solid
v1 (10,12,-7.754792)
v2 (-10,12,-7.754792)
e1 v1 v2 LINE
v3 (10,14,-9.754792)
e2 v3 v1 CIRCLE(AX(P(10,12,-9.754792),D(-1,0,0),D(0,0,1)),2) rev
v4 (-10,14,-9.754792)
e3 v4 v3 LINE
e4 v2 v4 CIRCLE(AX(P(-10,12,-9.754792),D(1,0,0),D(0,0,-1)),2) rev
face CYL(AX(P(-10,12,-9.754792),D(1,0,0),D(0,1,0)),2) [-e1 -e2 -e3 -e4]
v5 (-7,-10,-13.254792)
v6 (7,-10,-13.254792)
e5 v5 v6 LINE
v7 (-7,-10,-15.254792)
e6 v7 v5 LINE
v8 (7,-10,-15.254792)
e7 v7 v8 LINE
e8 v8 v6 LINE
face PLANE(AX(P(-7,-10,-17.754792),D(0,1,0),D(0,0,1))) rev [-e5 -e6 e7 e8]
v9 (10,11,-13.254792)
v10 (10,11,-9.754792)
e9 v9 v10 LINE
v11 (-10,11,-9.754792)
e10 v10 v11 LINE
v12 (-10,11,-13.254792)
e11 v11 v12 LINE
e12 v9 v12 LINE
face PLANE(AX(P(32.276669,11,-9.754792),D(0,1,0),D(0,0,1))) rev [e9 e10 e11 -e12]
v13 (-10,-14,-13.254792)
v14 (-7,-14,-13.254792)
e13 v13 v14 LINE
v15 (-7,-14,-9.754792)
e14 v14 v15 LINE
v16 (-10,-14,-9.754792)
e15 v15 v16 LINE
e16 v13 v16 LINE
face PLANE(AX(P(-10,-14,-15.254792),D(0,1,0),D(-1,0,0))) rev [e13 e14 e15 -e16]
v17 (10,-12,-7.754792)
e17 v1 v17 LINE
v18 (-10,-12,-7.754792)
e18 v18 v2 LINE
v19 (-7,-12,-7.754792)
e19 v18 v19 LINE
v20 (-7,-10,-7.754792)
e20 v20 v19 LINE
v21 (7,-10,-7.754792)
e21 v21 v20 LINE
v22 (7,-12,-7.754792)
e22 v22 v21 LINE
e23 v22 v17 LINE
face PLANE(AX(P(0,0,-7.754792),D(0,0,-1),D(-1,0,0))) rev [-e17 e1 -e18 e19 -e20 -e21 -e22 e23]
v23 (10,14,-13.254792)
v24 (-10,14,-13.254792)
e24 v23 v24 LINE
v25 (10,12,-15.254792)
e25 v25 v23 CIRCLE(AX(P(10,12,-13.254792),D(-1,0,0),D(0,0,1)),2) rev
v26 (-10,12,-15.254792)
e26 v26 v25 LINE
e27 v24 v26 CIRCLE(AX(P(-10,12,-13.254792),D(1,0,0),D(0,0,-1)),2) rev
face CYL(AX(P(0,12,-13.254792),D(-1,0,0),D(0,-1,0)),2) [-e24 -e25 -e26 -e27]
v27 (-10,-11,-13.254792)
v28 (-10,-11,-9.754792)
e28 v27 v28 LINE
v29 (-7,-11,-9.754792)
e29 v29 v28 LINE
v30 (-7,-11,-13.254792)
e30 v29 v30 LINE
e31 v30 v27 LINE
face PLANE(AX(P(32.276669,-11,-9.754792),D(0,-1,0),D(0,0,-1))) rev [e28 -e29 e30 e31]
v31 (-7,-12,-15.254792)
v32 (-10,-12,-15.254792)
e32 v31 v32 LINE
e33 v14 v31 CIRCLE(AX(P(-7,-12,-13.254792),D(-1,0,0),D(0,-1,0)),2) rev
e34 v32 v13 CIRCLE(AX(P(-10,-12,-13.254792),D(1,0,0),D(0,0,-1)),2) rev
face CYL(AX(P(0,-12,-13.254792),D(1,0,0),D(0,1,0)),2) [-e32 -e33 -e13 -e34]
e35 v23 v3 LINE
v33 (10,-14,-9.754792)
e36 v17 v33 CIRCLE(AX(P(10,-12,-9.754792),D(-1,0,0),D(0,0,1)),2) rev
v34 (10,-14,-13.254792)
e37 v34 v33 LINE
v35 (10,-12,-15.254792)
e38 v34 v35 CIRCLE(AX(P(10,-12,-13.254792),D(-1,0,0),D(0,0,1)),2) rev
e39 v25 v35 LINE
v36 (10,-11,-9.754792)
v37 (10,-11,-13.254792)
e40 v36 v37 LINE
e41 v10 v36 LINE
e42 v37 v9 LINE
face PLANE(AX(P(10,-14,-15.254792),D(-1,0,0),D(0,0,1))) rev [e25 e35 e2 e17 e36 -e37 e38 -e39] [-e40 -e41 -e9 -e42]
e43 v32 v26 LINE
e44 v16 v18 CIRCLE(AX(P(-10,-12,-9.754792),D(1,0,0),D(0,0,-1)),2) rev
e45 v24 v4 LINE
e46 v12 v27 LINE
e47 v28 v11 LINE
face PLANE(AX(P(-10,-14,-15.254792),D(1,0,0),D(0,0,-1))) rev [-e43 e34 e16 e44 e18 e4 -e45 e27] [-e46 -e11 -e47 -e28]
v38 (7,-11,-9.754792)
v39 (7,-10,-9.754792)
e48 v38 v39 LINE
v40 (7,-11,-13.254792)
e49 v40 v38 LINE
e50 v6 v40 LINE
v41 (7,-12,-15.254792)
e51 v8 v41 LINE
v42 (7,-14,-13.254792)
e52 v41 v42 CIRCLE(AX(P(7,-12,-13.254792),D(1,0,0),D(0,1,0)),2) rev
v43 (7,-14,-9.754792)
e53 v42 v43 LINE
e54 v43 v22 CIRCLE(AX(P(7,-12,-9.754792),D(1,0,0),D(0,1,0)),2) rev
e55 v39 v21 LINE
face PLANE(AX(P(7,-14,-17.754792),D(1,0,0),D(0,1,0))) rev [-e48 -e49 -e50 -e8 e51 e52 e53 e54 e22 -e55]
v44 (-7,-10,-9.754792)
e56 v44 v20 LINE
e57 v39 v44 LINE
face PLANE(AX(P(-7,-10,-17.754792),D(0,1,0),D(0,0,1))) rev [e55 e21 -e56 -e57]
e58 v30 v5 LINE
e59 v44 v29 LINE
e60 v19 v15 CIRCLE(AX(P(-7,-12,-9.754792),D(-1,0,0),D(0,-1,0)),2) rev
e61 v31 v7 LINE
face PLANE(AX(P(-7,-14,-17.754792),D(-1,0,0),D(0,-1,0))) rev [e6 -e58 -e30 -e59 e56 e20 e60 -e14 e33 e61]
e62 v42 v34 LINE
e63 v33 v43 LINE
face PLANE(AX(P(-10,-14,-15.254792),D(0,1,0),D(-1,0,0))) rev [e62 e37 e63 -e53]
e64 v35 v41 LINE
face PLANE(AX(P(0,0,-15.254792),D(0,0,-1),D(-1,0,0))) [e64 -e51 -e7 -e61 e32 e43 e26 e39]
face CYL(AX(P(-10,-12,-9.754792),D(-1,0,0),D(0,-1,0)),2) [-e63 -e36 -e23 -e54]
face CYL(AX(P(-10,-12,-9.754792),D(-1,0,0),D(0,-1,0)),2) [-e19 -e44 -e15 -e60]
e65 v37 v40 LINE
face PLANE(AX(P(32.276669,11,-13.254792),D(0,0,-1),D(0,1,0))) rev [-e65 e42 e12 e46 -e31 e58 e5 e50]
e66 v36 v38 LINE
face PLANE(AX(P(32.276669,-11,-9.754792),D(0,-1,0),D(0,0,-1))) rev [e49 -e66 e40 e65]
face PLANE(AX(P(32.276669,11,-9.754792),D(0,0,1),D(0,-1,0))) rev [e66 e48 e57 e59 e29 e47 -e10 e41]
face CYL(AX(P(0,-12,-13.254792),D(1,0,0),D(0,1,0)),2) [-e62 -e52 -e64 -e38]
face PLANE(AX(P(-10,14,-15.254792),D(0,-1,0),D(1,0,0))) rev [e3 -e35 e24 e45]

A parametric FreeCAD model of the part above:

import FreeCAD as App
import Part
import Sketcher

V = App.Vector


def edges_at(feature, points):
    """Names of the edges that pass closest to the given points."""
    edges = feature.Shape.Edges
    near = lambda p: min(range(len(edges)), key=lambda i: edges[i].distToShape(Part.Vertex(*p))[0])
    return sorted({f"Edge{near(p) + 1}" for p in points})

doc = App.newDocument("Part")
body = doc.addObject("PartDesign::Body", "Body")

sketch1 = body.newObject("Sketcher::SketchObject", "Sketch")
sketch1.AttachmentSupport = (doc.getObject("XY_Plane"), [""])
sketch1.MapMode = "FlatFace"
sketch1.AttachmentOffset = App.Placement(V(0, 0, -7.754792), App.Rotation())
sketch1.addGeometry(Part.LineSegment(V(-21, 4, 0), V(-21, -4, 0)), False)
sketch1.addGeometry(Part.LineSegment(V(-21, -4, 0), V(21, -4, 0)), False)
sketch1.addGeometry(Part.LineSegment(V(21, -4, 0), V(21, 4, 0)), False)
sketch1.addGeometry(Part.LineSegment(V(21, 4, 0), V(-21, 4, 0)), False)
sketch1.addConstraint(Sketcher.Constraint("Coincident", 0, 2, 1, 1))
sketch1.addConstraint(Sketcher.Constraint("Coincident", 1, 2, 2, 1))
sketch1.addConstraint(Sketcher.Constraint("Coincident", 2, 2, 3, 1))
sketch1.addConstraint(Sketcher.Constraint("Coincident", 3, 2, 0, 1))
sketch1.addConstraint(Sketcher.Constraint("Vertical", 0))
sketch1.addConstraint(Sketcher.Constraint("Horizontal", 1))
sketch1.addConstraint(Sketcher.Constraint("Vertical", 2))
sketch1.addConstraint(Sketcher.Constraint("Horizontal", 3))
sketch1.addConstraint(Sketcher.Constraint("Symmetric", 0, 2, 2, 2, -1, 1))
sketch1.addConstraint(Sketcher.Constraint("DistanceX", 1, 1, 1, 2, 42.0))
sketch1.addConstraint(Sketcher.Constraint("DistanceY", 0, 2, 0, 1, 8.4))
pad1 = body.newObject("PartDesign::Pad", "Pad")
pad1.Profile = sketch1
pad1.Length = 2

sketch2 = body.newObject("Sketcher::SketchObject", "Sketch001")
sketch2.AttachmentSupport = (doc.getObject("XY_Plane"), [""])
sketch2.MapMode = "FlatFace"
sketch2.AttachmentOffset = App.Placement(V(0, 0, -5.754792), App.Rotation())
sketch2.addGeometry(Part.LineSegment(V(-10.8, 4.2, 0), V(-10.8, -4.2, 0)), False)
sketch2.addGeometry(Part.LineSegment(V(-10.8, -4.2, 0), V(-7.2, -4.2, 0)), False)
sketch2.addGeometry(Part.LineSegment(V(-7.2, -4.2, 0), V(-7.2, 4.2, 0)), False)
sketch2.addGeometry(Part.LineSegment(V(-7.2, 4.2, 0), V(-10.8, 4.2, 0)), False)
sketch2.addGeometry(Part.LineSegment(V(7.2, 4.2, 0), V(7.2, -4.2, 0)), False)
sketch2.addGeometry(Part.LineSegment(V(7.2, -4.2, 0), V(10.8, -4.2, 0)), False)
sketch2.addGeometry(Part.LineSegment(V(10.8, -4.2, 0), V(10.8, 4.2, 0)), False)
sketch2.addGeometry(Part.LineSegment(V(10.8, 4.2, 0), V(7.2, 4.2, 0)), False)
sketch2.addGeometry(Part.LineSegment(V(-5, 4.2, 0), V(-5, -4.2, 0)), False)
sketch2.addGeometry(Part.LineSegment(V(-5, -4.2, 0), V(5, -4.2, 0)), False)
sketch2.addGeometry(Part.LineSegment(V(5, -4.2, 0), V(5, 4.2, 0)), False)
sketch2.addGeometry(Part.LineSegment(V(5, 4.2, 0), V(-5, 4.2, 0)), False)
sketch2.addConstraint(Sketcher.Constraint("Coincident", 0, 2, 1, 1))
sketch2.addConstraint(Sketcher.Constraint("Coincident", 1, 2, 2, 1))
sketch2.addConstraint(Sketcher.Constraint("Coincident", 2, 2, 3, 1))
sketch2.addConstraint(Sketcher.Constraint("Coincident", 3, 2, 0, 1))
sketch2.addConstraint(Sketcher.Constraint("Coincident", 4, 2, 5, 1))
sketch2.addConstraint(Sketcher.Constraint("Coincident", 5, 2, 6, 1))
sketch2.addConstraint(Sketcher.Constraint("Coincident", 6, 2, 7, 1))
sketch2.addConstraint(Sketcher.Constraint("Coincident", 7, 2, 4, 1))
sketch2.addConstraint(Sketcher.Constraint("Coincident", 8, 2, 9, 1))
sketch2.addConstraint(Sketcher.Constraint("Coincident", 9, 2, 10, 1))
sketch2.addConstraint(Sketcher.Constraint("Coincident", 10, 2, 11, 1))
sketch2.addConstraint(Sketcher.Constraint("Coincident", 11, 2, 8, 1))
sketch2.addConstraint(Sketcher.Constraint("Vertical", 0))
sketch2.addConstraint(Sketcher.Constraint("Horizontal", 1))
sketch2.addConstraint(Sketcher.Constraint("Vertical", 2))
sketch2.addConstraint(Sketcher.Constraint("Horizontal", 3))
sketch2.addConstraint(Sketcher.Constraint("Vertical", 4))
sketch2.addConstraint(Sketcher.Constraint("Horizontal", 5))
sketch2.addConstraint(Sketcher.Constraint("Vertical", 6))
sketch2.addConstraint(Sketcher.Constraint("Horizontal", 7))
sketch2.addConstraint(Sketcher.Constraint("Vertical", 8))
sketch2.addConstraint(Sketcher.Constraint("Horizontal", 9))
sketch2.addConstraint(Sketcher.Constraint("Vertical", 10))
sketch2.addConstraint(Sketcher.Constraint("Horizontal", 11))
sketch2.addConstraint(Sketcher.Constraint("Symmetric", 2, 2, 4, 2, -1, 1))
sketch2.addConstraint(Sketcher.Constraint("Symmetric", 0, 2, 6, 2, -1, 1))
sketch2.addConstraint(Sketcher.Constraint("Symmetric", 8, 2, 10, 2, -1, 1))
sketch2.addConstraint(Sketcher.Constraint("Horizontal", 1, 2, 4, 2))
sketch2.addConstraint(Sketcher.Constraint("Horizontal", 5, 2, 8, 2))
sketch2.addConstraint(Sketcher.Constraint("DistanceX", 9, 1, 9, 2, 10.0))
sketch2.addConstraint(Sketcher.Constraint("DistanceY", 0, 2, 0, 1, 8.4))
sketch2.addConstraint(Sketcher.Constraint("DistanceX", 1, 1, 1, 2, 3.55))
sketch2.addConstraint(Sketcher.Constraint("DistanceX", 1, 2, -1, 1, 7.2))
pad2 = body.newObject("PartDesign::Pad", "Pad001")
pad2.Profile = sketch2
pad2.Length = 2
doc.recompute()

fillet = body.newObject("PartDesign::Fillet", "Fillet")
fillet.Base = (pad2, edges_at(pad2, [
    (-21, 4.2, -6.755),
    (21, 4.2, -6.755),
    (21, -4.2, -6.755),
    (-21, -4.2, -6.755),
]))
fillet.Radius = 2

sketch3 = body.newObject("Sketcher::SketchObject", "Sketch002")
sketch3.AttachmentSupport = (doc.getObject("XY_Plane"), [""])
sketch3.MapMode = "FlatFace"
sketch3.AttachmentOffset = App.Placement(V(0, 0, -5.754792), App.Rotation())
sketch3.addGeometry(Part.Circle(V(-17.8, 0, 0), V(0, 0, 1), 1), False)
sketch3.addGeometry(Part.Circle(V(17.8, 0, 0), V(0, 0, 1), 1), False)
sketch3.addConstraint(Sketcher.Constraint("Equal", 0, 1))
sketch3.addConstraint(Sketcher.Constraint("Symmetric", 0, 3, 1, 3, -1, 1))
sketch3.addConstraint(Sketcher.Constraint("PointOnObject", 0, 3, -1))
sketch3.addConstraint(Sketcher.Constraint("Diameter", 0, 2.0))
sketch3.addConstraint(Sketcher.Constraint("DistanceX", 0, 3, 1, 3, 35.5))
pocket1 = body.newObject("PartDesign::Pocket", "Pocket")
pocket1.Profile = sketch3
pocket1.Length = 2

sketch4 = body.newObject("Sketcher::SketchObject", "Sketch003")
sketch4.AttachmentSupport = (doc.getObject("XY_Plane"), [""])
sketch4.MapMode = "FlatFace"
sketch4.AttachmentOffset = App.Placement(V(0, 0, -7.754792), App.Rotation())
sketch4.addGeometry(Part.LineSegment(V(10, 14, 0), V(10, -14, 0)), False)
sketch4.addGeometry(Part.LineSegment(V(10, -14, 0), V(-10, -14, 0)), False)
sketch4.addGeometry(Part.LineSegment(V(-10, -14, 0), V(-10, 14, 0)), False)
sketch4.addGeometry(Part.LineSegment(V(-10, 14, 0), V(10, 14, 0)), False)
sketch4.addConstraint(Sketcher.Constraint("Coincident", 0, 2, 1, 1))
sketch4.addConstraint(Sketcher.Constraint("Coincident", 1, 2, 2, 1))
sketch4.addConstraint(Sketcher.Constraint("Coincident", 2, 2, 3, 1))
sketch4.addConstraint(Sketcher.Constraint("Coincident", 3, 2, 0, 1))
sketch4.addConstraint(Sketcher.Constraint("Vertical", 0))
sketch4.addConstraint(Sketcher.Constraint("Horizontal", 1))
sketch4.addConstraint(Sketcher.Constraint("Vertical", 2))
sketch4.addConstraint(Sketcher.Constraint("Horizontal", 3))
sketch4.addConstraint(Sketcher.Constraint("Symmetric", 0, 2, 2, 2, -1, 1))
sketch4.addConstraint(Sketcher.Constraint("DistanceX", 1, 2, 1, 1, 20.0))
sketch4.addConstraint(Sketcher.Constraint("DistanceY", 0, 2, 0, 1, 28.0))
pad3 = body.newObject("PartDesign::Pad", "Pad002")
pad3.Profile = sketch4
pad3.Length = 7.5
pad3.Reversed = True
doc.recompute()

fillet2 = body.newObject("PartDesign::Fillet", "Fillet001")
fillet2.Base = (pad3, edges_at(pad3, [
    (0, 14, -7.755),
    (0, -14, -7.755),
    (0, 14, -15.255),
    (0, -14, -15.255),
]))
fillet2.Radius = 2

sketch5 = body.newObject("Sketcher::SketchObject", "Sketch004")
sketch5.AttachmentSupport = (doc.getObject("YZ_Plane"), [""])
sketch5.MapMode = "FlatFace"
sketch5.AttachmentOffset = App.Placement(V(0, 0, -10), App.Rotation())
sketch5.addGeometry(Part.LineSegment(V(11, -13.3, 0), V(-11, -13.3, 0)), False)
sketch5.addGeometry(Part.LineSegment(V(-11, -13.3, 0), V(-11, -9.8, 0)), False)
sketch5.addGeometry(Part.LineSegment(V(-11, -9.8, 0), V(11, -9.8, 0)), False)
sketch5.addGeometry(Part.LineSegment(V(11, -9.8, 0), V(11, -13.3, 0)), False)
sketch5.addConstraint(Sketcher.Constraint("Coincident", 0, 2, 1, 1))
sketch5.addConstraint(Sketcher.Constraint("Coincident", 1, 2, 2, 1))
sketch5.addConstraint(Sketcher.Constraint("Coincident", 2, 2, 3, 1))
sketch5.addConstraint(Sketcher.Constraint("Coincident", 3, 2, 0, 1))
sketch5.addConstraint(Sketcher.Constraint("Horizontal", 0))
sketch5.addConstraint(Sketcher.Constraint("Vertical", 1))
sketch5.addConstraint(Sketcher.Constraint("Horizontal", 2))
sketch5.addConstraint(Sketcher.Constraint("Vertical", 3))
sketch5.addConstraint(Sketcher.Constraint("DistanceX", 0, 2, 0, 1, 22.0))
sketch5.addConstraint(Sketcher.Constraint("DistanceY", 1, 1, 1, 2, 3.5))
sketch5.addConstraint(Sketcher.Constraint("DistanceX", 0, 2, -1, 1, 11.0))
sketch5.addConstraint(Sketcher.Constraint("DistanceY", 0, 2, -1, 1, 13.254792))
pocket2 = body.newObject("PartDesign::Pocket", "Pocket001")
pocket2.Profile = sketch5
pocket2.Length = 20
pocket2.Reversed = True

sketch6 = body.newObject("Sketcher::SketchObject", "Sketch005")
sketch6.AttachmentSupport = (doc.getObject("XY_Plane"), [""])
sketch6.MapMode = "FlatFace"
sketch6.AttachmentOffset = App.Placement(V(0, 0, -3.754792), App.Rotation())
sketch6.addGeometry(Part.LineSegment(V(-22, 5, 0), V(-22, -6, 0)), False)
sketch6.addGeometry(Part.LineSegment(V(-22, -6, 0), V(22, -6, 0)), False)
sketch6.addGeometry(Part.LineSegment(V(22, -6, 0), V(22, 5, 0)), False)
sketch6.addGeometry(Part.LineSegment(V(22, 5, 0), V(-22, 5, 0)), False)
sketch6.addConstraint(Sketcher.Constraint("Coincident", 0, 2, 1, 1))
sketch6.addConstraint(Sketcher.Constraint("Coincident", 1, 2, 2, 1))
sketch6.addConstraint(Sketcher.Constraint("Coincident", 2, 2, 3, 1))
sketch6.addConstraint(Sketcher.Constraint("Coincident", 3, 2, 0, 1))
sketch6.addConstraint(Sketcher.Constraint("Vertical", 0))
sketch6.addConstraint(Sketcher.Constraint("Horizontal", 1))
sketch6.addConstraint(Sketcher.Constraint("Vertical", 2))
sketch6.addConstraint(Sketcher.Constraint("Horizontal", 3))
sketch6.addConstraint(Sketcher.Constraint("DistanceX", 1, 1, 1, 2, 44.314231))
sketch6.addConstraint(Sketcher.Constraint("DistanceY", 0, 2, 0, 1, 10.974489))
sketch6.addConstraint(Sketcher.Constraint("DistanceX", 0, 2, -1, 1, 22.376937))
sketch6.addConstraint(Sketcher.Constraint("DistanceY", 0, 2, -1, 1, 5.533043))
pocket3 = body.newObject("PartDesign::Pocket", "Pocket002")
pocket3.Profile = sketch6
pocket3.Length = 4

sketch7 = body.newObject("Sketcher::SketchObject", "Sketch006")
sketch7.AttachmentSupport = (doc.getObject("XY_Plane"), [""])
sketch7.MapMode = "FlatFace"
sketch7.AttachmentOffset = App.Placement(V(0, 0, -7.754792), App.Rotation())
sketch7.addGeometry(Part.LineSegment(V(-7, -10, 0), V(-7, -14, 0)), False)
sketch7.addGeometry(Part.LineSegment(V(-7, -14, 0), V(7, -14, 0)), False)
sketch7.addGeometry(Part.LineSegment(V(7, -14, 0), V(7, -10, 0)), False)
sketch7.addGeometry(Part.LineSegment(V(7, -10, 0), V(-7, -10, 0)), False)
sketch7.addConstraint(Sketcher.Constraint("Coincident", 0, 2, 1, 1))
sketch7.addConstraint(Sketcher.Constraint("Coincident", 1, 2, 2, 1))
sketch7.addConstraint(Sketcher.Constraint("Coincident", 2, 2, 3, 1))
sketch7.addConstraint(Sketcher.Constraint("Coincident", 3, 2, 0, 1))
sketch7.addConstraint(Sketcher.Constraint("Vertical", 0))
sketch7.addConstraint(Sketcher.Constraint("Horizontal", 1))
sketch7.addConstraint(Sketcher.Constraint("Vertical", 2))
sketch7.addConstraint(Sketcher.Constraint("Horizontal", 3))
sketch7.addConstraint(Sketcher.Constraint("DistanceX", 1, 1, 1, 2, 14.0))
sketch7.addConstraint(Sketcher.Constraint("DistanceY", 0, 2, 0, 1, 4.0))
sketch7.addConstraint(Sketcher.Constraint("DistanceX", 0, 2, -1, 1, 7.0))
sketch7.addConstraint(Sketcher.Constraint("DistanceY", 0, 2, -1, 1, 14.0))
pocket4 = body.newObject("PartDesign::Pocket", "Pocket003")
pocket4.Profile = sketch7
pocket4.Length = 10

doc.recompute()
